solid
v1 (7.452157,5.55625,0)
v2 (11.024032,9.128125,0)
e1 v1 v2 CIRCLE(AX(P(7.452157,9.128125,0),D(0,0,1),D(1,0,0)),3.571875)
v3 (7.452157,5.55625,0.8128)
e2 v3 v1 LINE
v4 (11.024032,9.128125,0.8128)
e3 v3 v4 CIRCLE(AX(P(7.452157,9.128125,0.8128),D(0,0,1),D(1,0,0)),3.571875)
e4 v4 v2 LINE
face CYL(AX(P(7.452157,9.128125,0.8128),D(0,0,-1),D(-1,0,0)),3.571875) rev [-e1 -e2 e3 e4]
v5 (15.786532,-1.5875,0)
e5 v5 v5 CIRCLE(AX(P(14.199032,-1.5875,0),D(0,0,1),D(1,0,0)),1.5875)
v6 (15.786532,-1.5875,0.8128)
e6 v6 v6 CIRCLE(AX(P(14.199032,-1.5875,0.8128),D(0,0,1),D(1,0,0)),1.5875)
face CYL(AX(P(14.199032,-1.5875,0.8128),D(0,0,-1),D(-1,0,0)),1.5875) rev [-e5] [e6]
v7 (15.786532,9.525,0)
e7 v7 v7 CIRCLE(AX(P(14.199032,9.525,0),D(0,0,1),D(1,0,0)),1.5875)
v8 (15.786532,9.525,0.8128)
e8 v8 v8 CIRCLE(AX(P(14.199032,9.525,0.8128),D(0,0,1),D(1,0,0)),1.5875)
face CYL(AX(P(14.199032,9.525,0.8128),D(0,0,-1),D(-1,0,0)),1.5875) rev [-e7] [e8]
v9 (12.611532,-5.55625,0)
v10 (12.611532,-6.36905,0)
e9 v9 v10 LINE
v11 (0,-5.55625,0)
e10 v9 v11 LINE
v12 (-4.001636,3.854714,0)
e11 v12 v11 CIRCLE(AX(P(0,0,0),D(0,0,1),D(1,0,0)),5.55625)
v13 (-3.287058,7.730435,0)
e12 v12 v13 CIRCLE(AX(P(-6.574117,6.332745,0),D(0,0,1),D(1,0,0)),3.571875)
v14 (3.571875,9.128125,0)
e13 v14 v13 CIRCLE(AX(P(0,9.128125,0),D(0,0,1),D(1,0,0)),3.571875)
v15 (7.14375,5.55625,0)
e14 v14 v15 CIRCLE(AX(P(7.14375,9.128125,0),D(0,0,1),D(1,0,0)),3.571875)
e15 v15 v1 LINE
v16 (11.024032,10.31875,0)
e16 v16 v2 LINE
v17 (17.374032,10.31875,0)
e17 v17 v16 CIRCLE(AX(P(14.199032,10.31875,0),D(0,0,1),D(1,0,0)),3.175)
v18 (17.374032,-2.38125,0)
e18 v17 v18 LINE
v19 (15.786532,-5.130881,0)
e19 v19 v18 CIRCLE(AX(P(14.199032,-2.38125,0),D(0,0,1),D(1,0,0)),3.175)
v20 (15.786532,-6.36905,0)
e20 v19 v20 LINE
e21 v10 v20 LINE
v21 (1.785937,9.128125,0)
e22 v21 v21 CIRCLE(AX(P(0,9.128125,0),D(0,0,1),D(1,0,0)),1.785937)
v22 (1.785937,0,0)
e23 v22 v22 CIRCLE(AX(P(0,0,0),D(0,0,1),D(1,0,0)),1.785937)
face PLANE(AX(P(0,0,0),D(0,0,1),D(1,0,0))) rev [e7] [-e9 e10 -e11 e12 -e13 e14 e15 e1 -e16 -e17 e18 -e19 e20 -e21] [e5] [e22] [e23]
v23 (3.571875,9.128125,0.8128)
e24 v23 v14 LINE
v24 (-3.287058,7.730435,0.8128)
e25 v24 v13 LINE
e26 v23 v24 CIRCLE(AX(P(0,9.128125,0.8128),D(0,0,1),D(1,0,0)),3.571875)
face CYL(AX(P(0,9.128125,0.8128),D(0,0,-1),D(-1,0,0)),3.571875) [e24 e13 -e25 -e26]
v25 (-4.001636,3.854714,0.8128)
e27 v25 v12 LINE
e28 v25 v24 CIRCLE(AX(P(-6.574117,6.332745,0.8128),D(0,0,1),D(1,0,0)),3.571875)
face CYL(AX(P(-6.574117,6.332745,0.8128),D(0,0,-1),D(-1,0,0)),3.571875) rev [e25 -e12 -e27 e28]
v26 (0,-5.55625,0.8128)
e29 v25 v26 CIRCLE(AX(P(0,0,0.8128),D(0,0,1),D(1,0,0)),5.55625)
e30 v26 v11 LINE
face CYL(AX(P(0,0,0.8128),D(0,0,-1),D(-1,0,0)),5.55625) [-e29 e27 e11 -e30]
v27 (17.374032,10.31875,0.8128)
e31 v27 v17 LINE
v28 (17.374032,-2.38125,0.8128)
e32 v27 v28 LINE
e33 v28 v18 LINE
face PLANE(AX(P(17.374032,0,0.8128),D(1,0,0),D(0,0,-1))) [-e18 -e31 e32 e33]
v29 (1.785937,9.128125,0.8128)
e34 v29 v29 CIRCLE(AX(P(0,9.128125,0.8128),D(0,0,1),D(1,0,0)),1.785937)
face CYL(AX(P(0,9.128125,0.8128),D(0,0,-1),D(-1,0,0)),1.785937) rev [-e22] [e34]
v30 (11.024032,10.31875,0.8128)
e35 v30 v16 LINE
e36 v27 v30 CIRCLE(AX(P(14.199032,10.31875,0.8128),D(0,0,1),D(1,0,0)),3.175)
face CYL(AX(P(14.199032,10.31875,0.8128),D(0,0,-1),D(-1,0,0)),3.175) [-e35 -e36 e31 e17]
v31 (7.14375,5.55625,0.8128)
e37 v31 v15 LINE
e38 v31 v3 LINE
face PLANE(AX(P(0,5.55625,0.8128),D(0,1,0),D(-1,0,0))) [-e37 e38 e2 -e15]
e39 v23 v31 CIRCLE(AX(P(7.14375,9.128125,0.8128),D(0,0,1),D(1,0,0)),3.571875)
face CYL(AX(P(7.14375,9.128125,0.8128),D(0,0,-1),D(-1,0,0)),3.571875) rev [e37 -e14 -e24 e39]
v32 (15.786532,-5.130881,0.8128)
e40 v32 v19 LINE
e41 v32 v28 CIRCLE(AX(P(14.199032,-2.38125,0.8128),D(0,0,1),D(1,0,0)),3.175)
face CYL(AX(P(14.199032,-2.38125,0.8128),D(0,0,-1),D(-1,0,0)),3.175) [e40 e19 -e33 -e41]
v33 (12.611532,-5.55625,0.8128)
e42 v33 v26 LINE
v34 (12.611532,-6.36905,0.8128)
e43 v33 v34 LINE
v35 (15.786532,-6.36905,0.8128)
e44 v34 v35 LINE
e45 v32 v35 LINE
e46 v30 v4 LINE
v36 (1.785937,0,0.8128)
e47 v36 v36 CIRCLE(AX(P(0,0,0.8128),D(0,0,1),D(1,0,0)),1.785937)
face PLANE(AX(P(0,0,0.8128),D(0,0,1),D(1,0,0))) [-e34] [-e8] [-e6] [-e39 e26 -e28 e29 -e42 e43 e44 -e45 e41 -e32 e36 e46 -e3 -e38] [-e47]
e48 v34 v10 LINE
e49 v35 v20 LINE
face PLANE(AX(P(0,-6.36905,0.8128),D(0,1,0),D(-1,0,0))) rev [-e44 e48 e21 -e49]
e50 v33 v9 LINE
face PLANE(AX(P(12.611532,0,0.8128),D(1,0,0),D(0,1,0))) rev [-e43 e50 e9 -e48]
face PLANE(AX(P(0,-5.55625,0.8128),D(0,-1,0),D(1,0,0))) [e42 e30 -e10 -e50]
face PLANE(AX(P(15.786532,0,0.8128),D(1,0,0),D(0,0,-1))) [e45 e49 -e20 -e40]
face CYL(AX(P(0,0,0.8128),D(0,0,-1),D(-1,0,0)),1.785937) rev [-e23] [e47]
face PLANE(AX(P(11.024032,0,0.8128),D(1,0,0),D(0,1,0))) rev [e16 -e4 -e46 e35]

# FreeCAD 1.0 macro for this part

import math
import FreeCAD as App
import Part
import Sketcher
Q = App.Units.Quantity

doc = App.newDocument("Part")
body = doc.addObject("PartDesign::Body", "Body")

# Sketch on XY plane
sketch1 = body.newObject("Sketcher::SketchObject", "Sketch")
sketch1.AttachmentSupport = (doc.getObject("XY_Plane"), [""])
sketch1.MapMode = "FlatFace"
sketch1.addGeometry([
    Part.LineSegment(App.Vector(17.37, -2.38, 0), App.Vector(17.37, 10.32, 0)),  # 0
    Part.ArcOfCircle(Part.Circle(App.Vector(14.2, 10.32, 0), App.Vector(0, 0, 1), 3.17), math.radians(0), math.radians(180)),  # 1
    Part.LineSegment(App.Vector(11.02, 10.32, 0), App.Vector(11.02, 9.13, 0)),  # 2
    Part.ArcOfCircle(Part.Circle(App.Vector(7.45, 9.13, 0), App.Vector(0, 0, 1), 3.57), math.radians(-90), math.radians(0)),  # 3
    Part.LineSegment(App.Vector(7.45, 5.56, 0), App.Vector(7.14, 5.56, 0)),  # 4
    Part.ArcOfCircle(Part.Circle(App.Vector(7.14, 9.13, 0), App.Vector(0, 0, 1), 3.57), math.radians(180), math.radians(270)),  # 5
    Part.ArcOfCircle(Part.Circle(App.Vector(0, 9.13, 0), App.Vector(0, 0, 1), 3.57), math.radians(0), math.radians(203)),  # 6
    Part.ArcOfCircle(Part.Circle(App.Vector(-6.57, 6.33, 0), App.Vector(0, 0, 1), 3.57), math.radians(-44), math.radians(23)),  # 7
    Part.ArcOfCircle(Part.Circle(App.Vector(0, 0, 0), App.Vector(0, 0, 1), 5.56), math.radians(136), math.radians(270)),  # 8
    Part.LineSegment(App.Vector(0, -5.56, 0), App.Vector(12.61, -5.56, 0)),  # 9
    Part.LineSegment(App.Vector(12.61, -5.56, 0), App.Vector(12.61, -6.37, 0)),  # 10
    Part.LineSegment(App.Vector(12.61, -6.37, 0), App.Vector(15.79, -6.37, 0)),  # 11
    Part.LineSegment(App.Vector(15.79, -6.37, 0), App.Vector(15.79, -5.13, 0)),  # 12
    Part.ArcOfCircle(Part.Circle(App.Vector(14.2, -2.38, 0), App.Vector(0, 0, 1), 3.17), math.radians(-60), math.radians(0)),  # 13
    Part.Circle(App.Vector(0, 0, 0), App.Vector(0, 0, 1), 1.79),  # 14
    Part.Circle(App.Vector(14.2, -1.59, 0), App.Vector(0, 0, 1), 1.59),  # 15
    Part.Circle(App.Vector(0, 9.13, 0), App.Vector(0, 0, 1), 1.79),  # 16
    Part.Circle(App.Vector(14.2, 9.53, 0), App.Vector(0, 0, 1), 1.59),  # 17
], False)
sketch1.addConstraint([
    Sketcher.Constraint("Tangent", 0, 2, 1, 1),
    Sketcher.Constraint("Tangent", 1, 2, 2, 1),
    Sketcher.Constraint("Tangent", 2, 2, 3, 2),
    Sketcher.Constraint("Tangent", 3, 1, 4, 1),
    Sketcher.Constraint("Tangent", 4, 2, 5, 2),
    Sketcher.Constraint("Tangent", 5, 1, 6, 1),
    Sketcher.Constraint("Tangent", 6, 2, 7, 2),
    Sketcher.Constraint("Tangent", 7, 1, 8, 1),
    Sketcher.Constraint("Tangent", 8, 2, 9, 1),
    Sketcher.Constraint("Coincident", 9, 2, 10, 1),
    Sketcher.Constraint("Coincident", 10, 2, 11, 1),
    Sketcher.Constraint("Coincident", 11, 2, 12, 1),
    Sketcher.Constraint("Coincident", 12, 2, 13, 1),
    Sketcher.Constraint("Tangent", 13, 2, 0, 1),
    Sketcher.Constraint("Vertical", 0),
    Sketcher.Constraint("Vertical", 2),
    Sketcher.Constraint("Horizontal", 4),
    Sketcher.Constraint("Horizontal", 9),
    Sketcher.Constraint("Vertical", 10),
    Sketcher.Constraint("Horizontal", 11),
    Sketcher.Constraint("Vertical", 12),
    Sketcher.Constraint("Coincident", 8, 3, -1, 1),
    Sketcher.Constraint("Coincident", 14, 3, -1, 1),
    Sketcher.Constraint("Coincident", 16, 3, 6, 3),
    Sketcher.Constraint("Equal", 3, 5),
    Sketcher.Constraint("Equal", 5, 6),
    Sketcher.Constraint("Equal", 6, 7),
    Sketcher.Constraint("Equal", 1, 13),
    Sketcher.Constraint("Equal", 14, 16),
    Sketcher.Constraint("Equal", 15, 17),
    Sketcher.Constraint("PointOnObject", 6, 3, -2),
    Sketcher.Constraint("Horizontal", 5, 3, 6, 3),
    Sketcher.Constraint("Vertical", 13, 3, 15, 3),
    Sketcher.Constraint("Vertical", 15, 3, 17, 3),
    Sketcher.Constraint("Diameter", 14, Q("0.140625 in")),
    Sketcher.Constraint("Diameter", 15, Q("0.125 in")),
    Sketcher.Constraint("DistanceY", 0, 1, 0, 2, Q("0.5 in")),
    Sketcher.Constraint("Radius", 1, Q("0.125 in")),
    Sketcher.Constraint("Radius", 3, Q("0.140625 in")),
    Sketcher.Constraint("Radius", 8, Q("0.21875 in")),
    Sketcher.Constraint("DistanceX", 11, 1, 11, 2, Q("0.125 in")),
    Sketcher.Constraint("DistanceY", 2, 2, 2, 1, Q("0.046875 in")),
    Sketcher.Constraint("DistanceY", 10, 2, 10, 1, Q("0.032 in")),
    Sketcher.Constraint("DistanceY", -1, 1, 1, 3, Q("0.40625 in")),
    Sketcher.Constraint("DistanceY", 15, 3, -1, 1, Q("0.0625 in")),
    Sketcher.Constraint("DistanceY", -1, 1, 17, 3, Q("0.375 in")),
    Sketcher.Constraint("DistanceX", 9, 2, 13, 3, Q("0.0625 in")),
    Sketcher.Constraint("DistanceX", 9, 1, 9, 2, Q("12.611532 mm")),
])
pad1 = body.newObject("PartDesign::Pad", "Pad")
pad1.Profile = sketch1
pad1.Length = Q("0.032 in")

doc.recompute()
